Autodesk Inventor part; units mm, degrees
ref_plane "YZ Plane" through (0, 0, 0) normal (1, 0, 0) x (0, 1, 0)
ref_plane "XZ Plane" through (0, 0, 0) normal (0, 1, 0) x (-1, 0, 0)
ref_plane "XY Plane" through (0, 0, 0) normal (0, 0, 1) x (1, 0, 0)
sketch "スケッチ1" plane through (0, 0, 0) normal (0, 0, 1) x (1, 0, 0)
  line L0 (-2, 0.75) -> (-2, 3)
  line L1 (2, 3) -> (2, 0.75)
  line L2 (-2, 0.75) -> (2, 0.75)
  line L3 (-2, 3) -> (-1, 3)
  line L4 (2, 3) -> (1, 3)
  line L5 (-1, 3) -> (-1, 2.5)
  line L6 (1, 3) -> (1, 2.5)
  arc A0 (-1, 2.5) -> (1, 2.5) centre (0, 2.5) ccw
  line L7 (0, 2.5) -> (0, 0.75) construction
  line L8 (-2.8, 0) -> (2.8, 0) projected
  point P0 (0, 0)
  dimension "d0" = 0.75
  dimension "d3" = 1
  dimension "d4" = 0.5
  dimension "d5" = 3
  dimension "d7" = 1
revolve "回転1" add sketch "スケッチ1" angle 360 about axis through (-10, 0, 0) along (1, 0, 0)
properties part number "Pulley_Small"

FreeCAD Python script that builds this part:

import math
import FreeCAD as App
import Part
import Sketcher

V = App.Vector
Q = App.Units.Quantity

doc = App.newDocument("Part")
body = doc.addObject("PartDesign::Body", "Body")

sketch1 = body.newObject("Sketcher::SketchObject", "Sketch")
sketch1.AttachmentSupport = (doc.getObject("XY_Plane"), [""])
sketch1.MapMode = "FlatFace"
sketch1.addGeometry([
    Part.LineSegment(V(-2, 3, 0), V(-2, 0.75, 0)),
    Part.LineSegment(V(-2, 0.75, 0), V(2, 0.75, 0)),
    Part.LineSegment(V(2, 0.75, 0), V(2, 3, 0)),
    Part.LineSegment(V(2, 3, 0), V(1, 3, 0)),
    Part.LineSegment(V(1, 3, 0), V(1, 2.5, 0)),
    Part.ArcOfCircle(Part.Circle(V(0, 2.5, 0), V(0, 0, 1), 1), math.radians(180), math.radians(360)),
    Part.LineSegment(V(-1, 2.5, 0), V(-1, 3, 0)),
    Part.LineSegment(V(-1, 3, 0), V(-2, 3, 0)),
], False)
sketch1.addConstraint([
    Sketcher.Constraint("Coincident", 0, 2, 1, 1),
    Sketcher.Constraint("Coincident", 1, 2, 2, 1),
    Sketcher.Constraint("Coincident", 2, 2, 3, 1),
    Sketcher.Constraint("Coincident", 3, 2, 4, 1),
    Sketcher.Constraint("Tangent", 4, 2, 5, 2),
    Sketcher.Constraint("Tangent", 5, 1, 6, 1),
    Sketcher.Constraint("Coincident", 6, 2, 7, 1),
    Sketcher.Constraint("Coincident", 7, 2, 0, 1),
    Sketcher.Constraint("Vertical", 0),
    Sketcher.Constraint("Horizontal", 1),
    Sketcher.Constraint("Vertical", 2),
    Sketcher.Constraint("Horizontal", 3),
    Sketcher.Constraint("Vertical", 4),
    Sketcher.Constraint("Vertical", 6),
    Sketcher.Constraint("Horizontal", 7),
    Sketcher.Constraint("Symmetric", 3, 2, 6, 2, -2),
    Sketcher.Constraint("Equal", 3, 7),
    Sketcher.Constraint("Radius", 5, Q("1 mm")),
    Sketcher.Constraint("DistanceX", 3, 2, 3, 1, Q("1 mm")),
    Sketcher.Constraint("DistanceY", 4, 2, 4, 1, Q("0.5 mm")),
    Sketcher.Constraint("DistanceY", -1, 1, 2, 2, Q("3 mm")),
    Sketcher.Constraint("DistanceY", -1, 1, 0, 2, Q("0.75 mm")),
])
revolution = body.newObject("PartDesign::Revolution", "Revolution")
revolution.Profile = sketch1
revolution.ReferenceAxis = (sketch1, ["H_Axis"])
revolution.Angle = 360

doc.recompute()
